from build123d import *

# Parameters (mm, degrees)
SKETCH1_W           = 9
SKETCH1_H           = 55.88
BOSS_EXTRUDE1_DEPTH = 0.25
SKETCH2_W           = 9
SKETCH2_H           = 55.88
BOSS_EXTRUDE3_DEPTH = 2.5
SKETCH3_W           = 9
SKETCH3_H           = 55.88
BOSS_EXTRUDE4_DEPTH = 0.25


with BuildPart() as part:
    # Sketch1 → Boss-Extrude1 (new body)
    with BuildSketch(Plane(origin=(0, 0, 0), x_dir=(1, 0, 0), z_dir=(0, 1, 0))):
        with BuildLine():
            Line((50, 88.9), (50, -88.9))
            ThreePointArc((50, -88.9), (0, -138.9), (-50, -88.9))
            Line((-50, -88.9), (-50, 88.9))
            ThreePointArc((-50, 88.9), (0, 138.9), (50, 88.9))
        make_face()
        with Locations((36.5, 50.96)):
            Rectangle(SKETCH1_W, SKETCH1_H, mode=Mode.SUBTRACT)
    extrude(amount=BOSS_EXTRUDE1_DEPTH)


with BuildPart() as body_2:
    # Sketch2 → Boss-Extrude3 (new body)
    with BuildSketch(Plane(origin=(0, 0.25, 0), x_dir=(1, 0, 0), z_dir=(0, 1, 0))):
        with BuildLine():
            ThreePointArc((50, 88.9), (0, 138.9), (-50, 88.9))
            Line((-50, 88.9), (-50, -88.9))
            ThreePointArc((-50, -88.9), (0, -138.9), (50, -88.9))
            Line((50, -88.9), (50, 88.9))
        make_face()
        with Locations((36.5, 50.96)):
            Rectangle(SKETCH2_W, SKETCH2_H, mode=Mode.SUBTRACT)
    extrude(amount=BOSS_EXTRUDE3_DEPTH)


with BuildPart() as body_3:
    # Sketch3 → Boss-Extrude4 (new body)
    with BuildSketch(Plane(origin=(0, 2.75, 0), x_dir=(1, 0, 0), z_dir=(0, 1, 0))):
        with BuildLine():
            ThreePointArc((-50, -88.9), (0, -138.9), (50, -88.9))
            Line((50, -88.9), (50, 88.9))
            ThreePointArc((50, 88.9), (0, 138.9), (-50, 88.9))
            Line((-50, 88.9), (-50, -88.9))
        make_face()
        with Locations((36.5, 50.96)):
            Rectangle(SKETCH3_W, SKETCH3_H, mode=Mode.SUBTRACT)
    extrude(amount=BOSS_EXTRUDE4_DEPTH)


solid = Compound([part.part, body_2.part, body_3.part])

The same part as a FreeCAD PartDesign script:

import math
import FreeCAD as App
import Part
import Sketcher

V = App.Vector

doc = App.newDocument("Part")
body = doc.addObject("PartDesign::Body", "Body")

# Sketch on XZ plane
sketch1 = doc.addObject("Sketcher::SketchObject", "Sketch")
body.addObject(sketch1)
sketch1.AttachmentSupport = (doc.XZ_Plane, [""])
sketch1.MapMode = "FlatFace"
sketch1.addGeometry([
    Part.LineSegment(V(50, 89, 0), V(50, -89, 0)),  # 0
    Part.ArcOfCircle(Part.Circle(V(0, -89, 0), V(0, 0, 1), 50), math.radians(180), math.radians(360)),  # 1
    Part.LineSegment(V(-50, -89, 0), V(-50, 89, 0)),  # 2
    Part.ArcOfCircle(Part.Circle(V(0, 89, 0), V(0, 0, 1), 50), math.radians(0), math.radians(180)),  # 3
    Part.LineSegment(V(32, -23, 0), V(32, -79, 0)),  # 4
    Part.LineSegment(V(32, -79, 0), V(41, -79, 0)),  # 5
    Part.LineSegment(V(41, -79, 0), V(41, -23, 0)),  # 6
    Part.LineSegment(V(41, -23, 0), V(32, -23, 0)),  # 7
], False)
sketch1.addConstraint([
    Sketcher.Constraint("Tangent", 0, 2, 1, 2),
    Sketcher.Constraint("Tangent", 1, 1, 2, 1),
    Sketcher.Constraint("Tangent", 2, 2, 3, 2),
    Sketcher.Constraint("Tangent", 3, 1, 0, 1),
    Sketcher.Constraint("Coincident", 4, 2, 5, 1),
    Sketcher.Constraint("Coincident", 5, 2, 6, 1),
    Sketcher.Constraint("Coincident", 6, 2, 7, 1),
    Sketcher.Constraint("Coincident", 7, 2, 4, 1),
    Sketcher.Constraint("Vertical", 0),
    Sketcher.Constraint("Vertical", 2),
    Sketcher.Constraint("Vertical", 4),
    Sketcher.Constraint("Horizontal", 5),
    Sketcher.Constraint("Vertical", 6),
    Sketcher.Constraint("Horizontal", 7),
    Sketcher.Constraint("Symmetric", 1, 3, 3, 3, -1, 1),
    Sketcher.Constraint("Radius", 1, 50.0),
    Sketcher.Constraint("DistanceX", 5, 1, 5, 2, 9.0),
    Sketcher.Constraint("DistanceY", 0, 2, 0, 1, 177.8),
    Sketcher.Constraint("DistanceX", -1, 1, 4, 2, 32.0),
    Sketcher.Constraint("DistanceY", 0, 2, 4, 2, 10.0),
    Sketcher.Constraint("DistanceY", 4, 2, 4, 1, 55.88),
])
pad1 = doc.addObject("PartDesign::Pad", "Pad")
body.addObject(pad1)
pad1.Profile = sketch1
pad1.Length = 0.25
pad1.Reversed = True
body2 = doc.addObject("PartDesign::Body", "Body001")

# Sketch on XZ plane
sketch2 = doc.addObject("Sketcher::SketchObject", "Sketch001")
body2.addObject(sketch2)
sketch2.AttachmentSupport = (doc.getObject("XZ_Plane001"), [""])
sketch2.MapMode = "FlatFace"
sketch2.AttachmentOffset = App.Placement(V(0, 0, -0.25), App.Rotation())
sketch2.addGeometry([
    Part.ArcOfCircle(Part.Circle(V(0, -89, 0), V(0, 0, 1), 50), math.radians(180), math.radians(360)),  # 0
    Part.LineSegment(V(-50, -89, 0), V(-50, 89, 0)),  # 1
    Part.ArcOfCircle(Part.Circle(V(0, 89, 0), V(0, 0, 1), 50), math.radians(0), math.radians(180)),  # 2
    Part.LineSegment(V(50, 89, 0), V(50, -89, 0)),  # 3
    Part.LineSegment(V(41, -23, 0), V(32, -23, 0)),  # 4
    Part.LineSegment(V(32, -23, 0), V(32, -79, 0)),  # 5
    Part.LineSegment(V(32, -79, 0), V(41, -79, 0)),  # 6
    Part.LineSegment(V(41, -79, 0), V(41, -23, 0)),  # 7
], False)
sketch2.addConstraint([
    Sketcher.Constraint("Tangent", 0, 1, 1, 1),
    Sketcher.Constraint("Tangent", 1, 2, 2, 2),
    Sketcher.Constraint("Tangent", 2, 1, 3, 1),
    Sketcher.Constraint("Tangent", 3, 2, 0, 2),
    Sketcher.Constraint("Coincident", 4, 2, 5, 1),
    Sketcher.Constraint("Coincident", 5, 2, 6, 1),
    Sketcher.Constraint("Coincident", 6, 2, 7, 1),
    Sketcher.Constraint("Coincident", 7, 2, 4, 1),
    Sketcher.Constraint("Vertical", 1),
    Sketcher.Constraint("Vertical", 3),
    Sketcher.Constraint("Horizontal", 4),
    Sketcher.Constraint("Vertical", 5),
    Sketcher.Constraint("Horizontal", 6),
    Sketcher.Constraint("Vertical", 7),
    Sketcher.Constraint("Symmetric", 0, 3, 2, 3, -1, 1),
    Sketcher.Constraint("Radius", 0, 50.0),
    Sketcher.Constraint("DistanceX", 4, 2, 4, 1, 9.0),
    Sketcher.Constraint("DistanceY", 1, 1, 1, 2, 177.8),
    Sketcher.Constraint("DistanceX", -1, 1, 4, 2, 32.0),
    Sketcher.Constraint("DistanceY", 3, 2, 5, 2, 10.0),
    Sketcher.Constraint("DistanceY", 5, 2, 5, 1, 55.88),
])
pad2 = doc.addObject("PartDesign::Pad", "Pad001")
body2.addObject(pad2)
pad2.Profile = sketch2
pad2.Length = 2.5
pad2.Reversed = True
body3 = doc.addObject("PartDesign::Body", "Body002")

# Sketch on XZ plane
sketch3 = doc.addObject("Sketcher::SketchObject", "Sketch002")
body3.addObject(sketch3)
sketch3.AttachmentSupport = (doc.getObject("XZ_Plane002"), [""])
sketch3.MapMode = "FlatFace"
sketch3.AttachmentOffset = App.Placement(V(0, 0, -2.75), App.Rotation())
sketch3.addGeometry([
    Part.ArcOfCircle(Part.Circle(V(0, 89, 0), V(0, 0, 1), 50), math.radians(0), math.radians(180)),  # 0
    Part.LineSegment(V(50, 89, 0), V(50, -89, 0)),  # 1
    Part.ArcOfCircle(Part.Circle(V(0, -89, 0), V(0, 0, 1), 50), math.radians(180), math.radians(360)),  # 2
    Part.LineSegment(V(-50, -89, 0), V(-50, 89, 0)),  # 3
    Part.LineSegment(V(41, -23, 0), V(32, -23, 0)),  # 4
    Part.LineSegment(V(32, -23, 0), V(32, -79, 0)),  # 5
    Part.LineSegment(V(32, -79, 0), V(41, -79, 0)),  # 6
    Part.LineSegment(V(41, -79, 0), V(41, -23, 0)),  # 7
], False)
sketch3.addConstraint([
    Sketcher.Constraint("Tangent", 0, 1, 1, 1),
    Sketcher.Constraint("Tangent", 1, 2, 2, 2),
    Sketcher.Constraint("Tangent", 2, 1, 3, 1),
    Sketcher.Constraint("Tangent", 3, 2, 0, 2),
    Sketcher.Constraint("Coincident", 4, 2, 5, 1),
    Sketcher.Constraint("Coincident", 5, 2, 6, 1),
    Sketcher.Constraint("Coincident", 6, 2, 7, 1),
    Sketcher.Constraint("Coincident", 7, 2, 4, 1),
    Sketcher.Constraint("Vertical", 1),
    Sketcher.Constraint("Vertical", 3),
    Sketcher.Constraint("Horizontal", 4),
    Sketcher.Constraint("Vertical", 5),
    Sketcher.Constraint("Horizontal", 6),
    Sketcher.Constraint("Vertical", 7),
    Sketcher.Constraint("Symmetric", 0, 3, 2, 3, -1, 1),
    Sketcher.Constraint("Radius", 0, 50.0),
    Sketcher.Constraint("DistanceX", 4, 2, 4, 1, 9.0),
    Sketcher.Constraint("DistanceY", 1, 2, 1, 1, 177.8),
    Sketcher.Constraint("DistanceX", -1, 1, 4, 2, 32.0),
    Sketcher.Constraint("DistanceY", 1, 2, 5, 2, 10.0),
    Sketcher.Constraint("DistanceY", 5, 2, 5, 1, 55.88),
])
pad3 = doc.addObject("PartDesign::Pad", "Pad002")
body3.addObject(pad3)
pad3.Profile = sketch3
pad3.Length = 0.25
pad3.Reversed = True

doc.recompute()
